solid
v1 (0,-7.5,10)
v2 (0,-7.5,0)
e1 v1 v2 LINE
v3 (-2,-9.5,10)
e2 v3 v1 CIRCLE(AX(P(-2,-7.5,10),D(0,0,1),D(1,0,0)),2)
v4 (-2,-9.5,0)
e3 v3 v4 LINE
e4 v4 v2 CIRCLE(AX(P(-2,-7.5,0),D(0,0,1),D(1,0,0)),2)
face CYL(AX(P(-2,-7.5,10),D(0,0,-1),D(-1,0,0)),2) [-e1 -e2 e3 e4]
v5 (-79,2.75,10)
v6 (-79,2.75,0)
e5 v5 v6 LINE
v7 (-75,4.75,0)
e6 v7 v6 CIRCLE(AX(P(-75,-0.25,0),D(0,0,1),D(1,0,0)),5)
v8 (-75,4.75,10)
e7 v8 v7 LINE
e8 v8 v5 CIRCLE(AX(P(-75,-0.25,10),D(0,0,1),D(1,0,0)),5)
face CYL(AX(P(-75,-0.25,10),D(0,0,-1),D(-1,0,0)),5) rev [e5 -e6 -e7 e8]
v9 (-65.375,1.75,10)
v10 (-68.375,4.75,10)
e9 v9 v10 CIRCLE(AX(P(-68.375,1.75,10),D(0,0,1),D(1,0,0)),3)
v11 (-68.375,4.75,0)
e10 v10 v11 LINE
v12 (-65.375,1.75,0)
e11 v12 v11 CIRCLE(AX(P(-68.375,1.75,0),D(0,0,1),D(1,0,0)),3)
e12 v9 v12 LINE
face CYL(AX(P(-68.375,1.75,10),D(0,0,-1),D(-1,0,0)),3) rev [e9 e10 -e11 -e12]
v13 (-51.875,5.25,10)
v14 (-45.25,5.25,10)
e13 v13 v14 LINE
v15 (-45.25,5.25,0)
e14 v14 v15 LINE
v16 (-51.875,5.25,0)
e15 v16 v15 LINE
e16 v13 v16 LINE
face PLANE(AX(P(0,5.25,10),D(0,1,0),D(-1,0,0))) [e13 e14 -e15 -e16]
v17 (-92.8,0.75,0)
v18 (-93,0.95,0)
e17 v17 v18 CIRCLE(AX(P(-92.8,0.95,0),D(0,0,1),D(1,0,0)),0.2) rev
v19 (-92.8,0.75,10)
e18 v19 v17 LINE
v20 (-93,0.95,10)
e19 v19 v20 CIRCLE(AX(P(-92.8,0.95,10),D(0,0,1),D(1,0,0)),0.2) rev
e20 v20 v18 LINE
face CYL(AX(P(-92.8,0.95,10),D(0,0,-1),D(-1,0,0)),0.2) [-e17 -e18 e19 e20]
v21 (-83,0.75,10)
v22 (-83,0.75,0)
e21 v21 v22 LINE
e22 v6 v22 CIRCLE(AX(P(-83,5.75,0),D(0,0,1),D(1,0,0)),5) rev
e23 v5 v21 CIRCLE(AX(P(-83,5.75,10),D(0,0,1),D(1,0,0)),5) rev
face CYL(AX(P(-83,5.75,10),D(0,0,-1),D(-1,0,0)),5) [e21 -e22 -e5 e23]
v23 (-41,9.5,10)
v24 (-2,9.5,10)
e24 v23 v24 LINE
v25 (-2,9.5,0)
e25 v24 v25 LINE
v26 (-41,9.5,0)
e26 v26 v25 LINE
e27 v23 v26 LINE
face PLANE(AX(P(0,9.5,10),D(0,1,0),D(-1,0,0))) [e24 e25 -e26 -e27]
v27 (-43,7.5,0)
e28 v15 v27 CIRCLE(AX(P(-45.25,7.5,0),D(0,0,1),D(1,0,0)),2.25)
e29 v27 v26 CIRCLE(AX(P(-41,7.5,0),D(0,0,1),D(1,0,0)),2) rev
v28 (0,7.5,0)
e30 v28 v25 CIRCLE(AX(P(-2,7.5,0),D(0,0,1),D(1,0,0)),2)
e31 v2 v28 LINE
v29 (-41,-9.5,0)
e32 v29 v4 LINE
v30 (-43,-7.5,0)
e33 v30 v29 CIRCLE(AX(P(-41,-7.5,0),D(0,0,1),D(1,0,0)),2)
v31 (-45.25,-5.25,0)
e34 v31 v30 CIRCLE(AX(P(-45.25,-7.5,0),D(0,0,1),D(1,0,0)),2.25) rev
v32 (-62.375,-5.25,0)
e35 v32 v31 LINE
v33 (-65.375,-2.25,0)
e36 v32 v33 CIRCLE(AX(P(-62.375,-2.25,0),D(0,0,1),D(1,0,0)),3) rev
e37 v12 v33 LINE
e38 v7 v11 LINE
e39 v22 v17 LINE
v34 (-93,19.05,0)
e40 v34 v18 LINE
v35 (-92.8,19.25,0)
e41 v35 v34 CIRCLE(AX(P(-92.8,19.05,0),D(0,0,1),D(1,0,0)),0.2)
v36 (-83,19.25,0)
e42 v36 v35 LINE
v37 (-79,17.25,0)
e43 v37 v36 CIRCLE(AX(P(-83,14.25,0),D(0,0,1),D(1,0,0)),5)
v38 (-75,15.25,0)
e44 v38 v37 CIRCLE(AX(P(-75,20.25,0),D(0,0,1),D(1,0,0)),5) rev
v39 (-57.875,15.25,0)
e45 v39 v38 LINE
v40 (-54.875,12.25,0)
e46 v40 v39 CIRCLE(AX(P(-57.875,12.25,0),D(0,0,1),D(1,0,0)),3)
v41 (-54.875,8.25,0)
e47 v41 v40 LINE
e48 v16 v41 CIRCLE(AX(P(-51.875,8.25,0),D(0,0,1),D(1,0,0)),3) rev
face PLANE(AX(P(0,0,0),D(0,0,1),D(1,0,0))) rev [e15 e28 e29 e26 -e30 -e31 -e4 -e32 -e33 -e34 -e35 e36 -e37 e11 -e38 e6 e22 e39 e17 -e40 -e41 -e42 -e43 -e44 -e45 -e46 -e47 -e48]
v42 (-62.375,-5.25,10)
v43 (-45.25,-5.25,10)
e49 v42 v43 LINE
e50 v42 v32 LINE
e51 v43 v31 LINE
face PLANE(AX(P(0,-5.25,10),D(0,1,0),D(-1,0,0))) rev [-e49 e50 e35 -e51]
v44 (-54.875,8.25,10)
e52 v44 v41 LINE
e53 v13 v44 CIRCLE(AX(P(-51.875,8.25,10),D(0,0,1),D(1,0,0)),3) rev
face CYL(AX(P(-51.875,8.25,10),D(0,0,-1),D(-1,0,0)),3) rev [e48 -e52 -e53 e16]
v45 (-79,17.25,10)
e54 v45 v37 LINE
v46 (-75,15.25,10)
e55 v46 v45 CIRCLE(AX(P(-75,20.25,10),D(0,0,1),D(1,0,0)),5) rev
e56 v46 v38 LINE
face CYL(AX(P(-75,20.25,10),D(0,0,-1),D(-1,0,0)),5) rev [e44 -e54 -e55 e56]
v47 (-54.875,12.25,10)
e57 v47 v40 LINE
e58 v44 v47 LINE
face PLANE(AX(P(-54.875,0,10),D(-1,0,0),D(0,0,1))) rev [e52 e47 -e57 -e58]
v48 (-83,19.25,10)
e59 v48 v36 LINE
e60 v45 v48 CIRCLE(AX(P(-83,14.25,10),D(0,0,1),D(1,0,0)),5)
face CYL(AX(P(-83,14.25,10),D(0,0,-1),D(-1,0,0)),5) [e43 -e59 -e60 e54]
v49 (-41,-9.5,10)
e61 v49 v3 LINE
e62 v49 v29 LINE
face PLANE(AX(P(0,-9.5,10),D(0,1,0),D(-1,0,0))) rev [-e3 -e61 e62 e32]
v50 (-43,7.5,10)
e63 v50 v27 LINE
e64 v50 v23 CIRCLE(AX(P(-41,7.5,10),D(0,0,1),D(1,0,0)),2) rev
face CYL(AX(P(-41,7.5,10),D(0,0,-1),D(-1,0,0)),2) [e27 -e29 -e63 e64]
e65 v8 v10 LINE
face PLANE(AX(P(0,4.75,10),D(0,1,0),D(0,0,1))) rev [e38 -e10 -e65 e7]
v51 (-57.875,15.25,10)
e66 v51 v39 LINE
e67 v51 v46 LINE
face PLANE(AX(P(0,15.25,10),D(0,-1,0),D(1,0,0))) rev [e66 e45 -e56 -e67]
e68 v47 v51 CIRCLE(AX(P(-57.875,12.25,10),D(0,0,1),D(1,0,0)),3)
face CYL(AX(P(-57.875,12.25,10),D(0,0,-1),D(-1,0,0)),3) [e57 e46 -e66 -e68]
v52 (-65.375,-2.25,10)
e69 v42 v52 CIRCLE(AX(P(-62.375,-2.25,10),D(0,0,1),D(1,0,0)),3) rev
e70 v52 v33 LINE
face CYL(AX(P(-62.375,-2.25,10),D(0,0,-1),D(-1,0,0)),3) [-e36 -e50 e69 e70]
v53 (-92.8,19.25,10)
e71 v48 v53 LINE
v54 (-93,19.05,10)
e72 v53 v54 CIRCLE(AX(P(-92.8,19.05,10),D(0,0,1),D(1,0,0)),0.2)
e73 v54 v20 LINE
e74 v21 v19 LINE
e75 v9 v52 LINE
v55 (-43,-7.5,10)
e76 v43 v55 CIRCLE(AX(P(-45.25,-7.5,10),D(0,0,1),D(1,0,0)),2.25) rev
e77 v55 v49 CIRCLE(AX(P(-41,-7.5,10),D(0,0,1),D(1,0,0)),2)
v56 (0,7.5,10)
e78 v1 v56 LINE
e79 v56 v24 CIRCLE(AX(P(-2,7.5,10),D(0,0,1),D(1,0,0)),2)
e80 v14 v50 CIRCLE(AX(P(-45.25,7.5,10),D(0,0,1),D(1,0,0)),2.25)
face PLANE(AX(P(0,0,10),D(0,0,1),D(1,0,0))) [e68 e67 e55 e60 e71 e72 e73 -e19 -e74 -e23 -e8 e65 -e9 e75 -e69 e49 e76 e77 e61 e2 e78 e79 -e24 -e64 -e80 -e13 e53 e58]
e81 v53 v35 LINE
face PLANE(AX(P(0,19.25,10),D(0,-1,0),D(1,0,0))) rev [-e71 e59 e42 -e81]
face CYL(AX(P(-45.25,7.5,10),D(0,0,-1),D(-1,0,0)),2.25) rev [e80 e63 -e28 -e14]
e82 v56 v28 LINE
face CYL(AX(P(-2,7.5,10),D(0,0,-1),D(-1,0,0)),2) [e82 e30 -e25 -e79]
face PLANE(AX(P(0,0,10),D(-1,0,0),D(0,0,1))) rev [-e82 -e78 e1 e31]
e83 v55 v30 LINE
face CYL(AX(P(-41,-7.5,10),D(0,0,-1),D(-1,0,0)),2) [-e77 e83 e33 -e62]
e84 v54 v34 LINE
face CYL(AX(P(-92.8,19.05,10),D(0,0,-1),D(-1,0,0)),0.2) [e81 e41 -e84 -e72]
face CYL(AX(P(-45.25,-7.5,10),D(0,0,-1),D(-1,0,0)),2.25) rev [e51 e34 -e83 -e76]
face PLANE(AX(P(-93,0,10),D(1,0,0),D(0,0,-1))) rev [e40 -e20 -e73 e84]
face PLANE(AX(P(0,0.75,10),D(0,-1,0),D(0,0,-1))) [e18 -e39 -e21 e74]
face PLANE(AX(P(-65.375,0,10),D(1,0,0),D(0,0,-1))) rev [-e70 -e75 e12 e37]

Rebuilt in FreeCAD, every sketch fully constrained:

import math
import FreeCAD as App
import Part
import Sketcher
Q = App.Units.Quantity

doc = App.newDocument("Part")
body = doc.addObject("PartDesign::Body", "Body")

sketch1 = doc.addObject("Sketcher::SketchObject", "Sketch")
body.addObject(sketch1)
sketch1.AttachmentSupport = (doc.XY_Plane, [""])
sketch1.MapMode = "FlatFace"
sketch1.addGeometry([
    Part.LineSegment(App.Vector(-83, 19.25, 0), App.Vector(-92.8, 19.25, 0)),
    Part.ArcOfCircle(Part.Circle(App.Vector(-92.8, 19.05, 0), App.Vector(0, 0, 1), 0.2), math.radians(90), math.radians(180)),
    Part.LineSegment(App.Vector(-93, 19.05, 0), App.Vector(-93, 0.95, 0)),
    Part.ArcOfCircle(Part.Circle(App.Vector(-92.8, 0.95, 0), App.Vector(0, 0, 1), 0.2), math.radians(-180), math.radians(-90)),
    Part.LineSegment(App.Vector(-92.8, 0.75, 0), App.Vector(-83, 0.75, 0)),
    Part.ArcOfCircle(Part.Circle(App.Vector(-83, 5.75, 0), App.Vector(0, 0, 1), 5), math.radians(-90), math.radians(-37)),
    Part.ArcOfCircle(Part.Circle(App.Vector(-75, -0.25, 0), App.Vector(0, 0, 1), 5), math.radians(90), math.radians(143)),
    Part.LineSegment(App.Vector(-75, 4.75, 0), App.Vector(-68.38, 4.75, 0)),
    Part.ArcOfCircle(Part.Circle(App.Vector(-68.37, 1.75, 0), App.Vector(0, 0, 1), 3), math.radians(0), math.radians(90)),
    Part.LineSegment(App.Vector(-65.38, 1.75, 0), App.Vector(-65.38, -2.25, 0)),
    Part.ArcOfCircle(Part.Circle(App.Vector(-62.38, -2.25, 0), App.Vector(0, 0, 1), 3), math.radians(180), math.radians(270)),
    Part.LineSegment(App.Vector(-62.38, -5.25, 0), App.Vector(-45.25, -5.25, 0)),
    Part.ArcOfCircle(Part.Circle(App.Vector(-45.25, -7.5, 0), App.Vector(0, 0, 1), 2.25), math.radians(0), math.radians(90)),
    Part.ArcOfCircle(Part.Circle(App.Vector(-41, -7.5, 0), App.Vector(0, 0, 1), 2), math.radians(-180), math.radians(-90)),
    Part.LineSegment(App.Vector(-41, -9.5, 0), App.Vector(-2, -9.5, 0)),
    Part.ArcOfCircle(Part.Circle(App.Vector(-2, -7.5, 0), App.Vector(0, 0, 1), 2), math.radians(-90), math.radians(0)),
    Part.LineSegment(App.Vector(0, -7.5, 0), App.Vector(0, 7.5, 0)),
    Part.ArcOfCircle(Part.Circle(App.Vector(-2, 7.5, 0), App.Vector(0, 0, 1), 2), math.radians(0), math.radians(90)),
    Part.LineSegment(App.Vector(-2, 9.5, 0), App.Vector(-41, 9.5, 0)),
    Part.ArcOfCircle(Part.Circle(App.Vector(-41, 7.5, 0), App.Vector(0, 0, 1), 2), math.radians(90), math.radians(180)),
    Part.ArcOfCircle(Part.Circle(App.Vector(-45.25, 7.5, 0), App.Vector(0, 0, 1), 2.25), math.radians(-90), math.radians(0)),
    Part.LineSegment(App.Vector(-45.25, 5.25, 0), App.Vector(-51.88, 5.25, 0)),
    Part.ArcOfCircle(Part.Circle(App.Vector(-51.88, 8.25, 0), App.Vector(0, 0, 1), 3), math.radians(180), math.radians(270)),
    Part.LineSegment(App.Vector(-54.88, 8.25, 0), App.Vector(-54.88, 12.25, 0)),
    Part.ArcOfCircle(Part.Circle(App.Vector(-57.87, 12.25, 0), App.Vector(0, 0, 1), 3), math.radians(0), math.radians(90)),
    Part.LineSegment(App.Vector(-57.88, 15.25, 0), App.Vector(-75, 15.25, 0)),
    Part.ArcOfCircle(Part.Circle(App.Vector(-75, 20.25, 0), App.Vector(0, 0, 1), 5), math.radians(-143), math.radians(-90)),
    Part.ArcOfCircle(Part.Circle(App.Vector(-83, 14.25, 0), App.Vector(0, 0, 1), 5), math.radians(37), math.radians(90)),
], False)
sketch1.addConstraint([
    Sketcher.Constraint("Tangent", 0, 2, 1, 1),
    Sketcher.Constraint("Tangent", 1, 2, 2, 1),
    Sketcher.Constraint("Tangent", 2, 2, 3, 1),
    Sketcher.Constraint("Tangent", 3, 2, 4, 1),
    Sketcher.Constraint("Tangent", 4, 2, 5, 1),
    Sketcher.Constraint("Tangent", 5, 2, 6, 2),
    Sketcher.Constraint("Tangent", 6, 1, 7, 1),
    Sketcher.Constraint("Tangent", 7, 2, 8, 2),
    Sketcher.Constraint("Tangent", 8, 1, 9, 1),
    Sketcher.Constraint("Tangent", 9, 2, 10, 1),
    Sketcher.Constraint("Tangent", 10, 2, 11, 1),
    Sketcher.Constraint("Tangent", 11, 2, 12, 2),
    Sketcher.Constraint("Tangent", 12, 1, 13, 1),
    Sketcher.Constraint("Tangent", 13, 2, 14, 1),
    Sketcher.Constraint("Tangent", 14, 2, 15, 1),
    Sketcher.Constraint("Tangent", 15, 2, 16, 1),
    Sketcher.Constraint("Tangent", 16, 2, 17, 1),
    Sketcher.Constraint("Tangent", 17, 2, 18, 1),
    Sketcher.Constraint("Tangent", 18, 2, 19, 1),
    Sketcher.Constraint("Tangent", 19, 2, 20, 2),
    Sketcher.Constraint("Tangent", 20, 1, 21, 1),
    Sketcher.Constraint("Tangent", 21, 2, 22, 2),
    Sketcher.Constraint("Tangent", 22, 1, 23, 1),
    Sketcher.Constraint("Tangent", 23, 2, 24, 1),
    Sketcher.Constraint("Tangent", 24, 2, 25, 1),
    Sketcher.Constraint("Tangent", 25, 2, 26, 2),
    Sketcher.Constraint("Tangent", 26, 1, 27, 1),
    Sketcher.Constraint("Tangent", 27, 2, 0, 1),
    Sketcher.Constraint("Horizontal", 0),
    Sketcher.Constraint("Vertical", 2),
    Sketcher.Constraint("Horizontal", 4),
    Sketcher.Constraint("Horizontal", 7),
    Sketcher.Constraint("Vertical", 9),
    Sketcher.Constraint("Horizontal", 11),
    Sketcher.Constraint("Horizontal", 14),
    Sketcher.Constraint("Vertical", 16),
    Sketcher.Constraint("Horizontal", 18),
    Sketcher.Constraint("Horizontal", 21),
    Sketcher.Constraint("Vertical", 23),
    Sketcher.Constraint("Horizontal", 25),
    Sketcher.Constraint("Equal", 1, 3),
    Sketcher.Constraint("Equal", 5, 6),
    Sketcher.Constraint("Equal", 8, 10),
    Sketcher.Constraint("Equal", 13, 15),
    Sketcher.Constraint("Equal", 15, 17),
    Sketcher.Constraint("Equal", 17, 19),
    Sketcher.Constraint("Equal", 12, 20),
    Sketcher.Constraint("Equal", 10, 22),
    Sketcher.Constraint("Equal", 22, 24),
    Sketcher.Constraint("Equal", 6, 26),
    Sketcher.Constraint("Equal", 26, 27),
    Sketcher.Constraint("Symmetric", 15, 2, 16, 2, -1, 1),
    Sketcher.Constraint("Symmetric", 12, 3, 20, 3, -1),
    Sketcher.Constraint("Horizontal", 12, 3, 13, 3),
    Sketcher.Constraint("Vertical", 6, 3, 26, 3),
    Sketcher.Constraint("Vertical", 5, 3, 27, 3),
    Sketcher.Constraint("Equal", 7, 21),
    Sketcher.Constraint("Equal", 9, 23),
    Sketcher.Constraint("Radius", 5, Q("5 mm")),
    Sketcher.Constraint("Radius", 8, Q("3 mm")),
    Sketcher.Constraint("Radius", 13, Q("2 mm")),
    Sketcher.Constraint("Radius", 1, Q("0.2 mm")),
    Sketcher.Constraint("DistanceX", 14, 1, 14, 2, Q("39 mm")),
    Sketcher.Constraint("DistanceY", 9, 2, 9, 1, Q("4 mm")),
    Sketcher.Constraint("DistanceY", 16, 1, 16, 2, Q("15 mm")),
    Sketcher.Constraint("Radius", 12, Q("2.25 mm")),
    Sketcher.Constraint("DistanceX", 0, 2, 0, 1, Q("9.8 mm")),
    Sketcher.Constraint("DistanceY", 2, 2, 2, 1, Q("18.1 mm")),
    Sketcher.Constraint("DistanceX", 5, 3, -1, 1, Q("83 mm")),
    Sketcher.Constraint("DistanceX", 10, 3, 22, 3, Q("10.5 mm")),
])
pad1 = doc.addObject("PartDesign::Pad", "Pad")
body.addObject(pad1)
pad1.Profile = sketch1
pad1.Length = 10

doc.recompute()
